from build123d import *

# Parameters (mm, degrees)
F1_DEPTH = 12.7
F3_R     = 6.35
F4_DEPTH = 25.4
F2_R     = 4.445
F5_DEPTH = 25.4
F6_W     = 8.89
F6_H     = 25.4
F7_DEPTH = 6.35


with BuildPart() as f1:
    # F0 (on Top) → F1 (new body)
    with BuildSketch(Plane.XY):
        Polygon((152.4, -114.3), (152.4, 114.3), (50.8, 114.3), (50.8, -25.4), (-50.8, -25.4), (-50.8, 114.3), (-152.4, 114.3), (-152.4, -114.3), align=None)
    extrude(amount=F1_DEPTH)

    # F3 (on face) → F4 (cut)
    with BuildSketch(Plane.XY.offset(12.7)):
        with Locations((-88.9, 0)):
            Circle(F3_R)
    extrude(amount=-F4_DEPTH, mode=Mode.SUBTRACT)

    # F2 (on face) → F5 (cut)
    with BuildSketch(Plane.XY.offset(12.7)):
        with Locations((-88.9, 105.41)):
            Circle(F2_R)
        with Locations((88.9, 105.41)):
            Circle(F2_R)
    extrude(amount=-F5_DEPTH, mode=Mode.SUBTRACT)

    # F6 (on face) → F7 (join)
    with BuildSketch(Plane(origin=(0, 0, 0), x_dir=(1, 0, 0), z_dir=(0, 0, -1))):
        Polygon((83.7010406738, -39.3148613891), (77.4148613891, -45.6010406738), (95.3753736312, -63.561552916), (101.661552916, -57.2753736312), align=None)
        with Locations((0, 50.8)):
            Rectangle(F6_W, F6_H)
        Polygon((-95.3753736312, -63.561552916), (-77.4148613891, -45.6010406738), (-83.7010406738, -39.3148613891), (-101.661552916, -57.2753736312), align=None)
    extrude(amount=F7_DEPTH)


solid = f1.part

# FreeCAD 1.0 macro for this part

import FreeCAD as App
import Part
import Sketcher
from FreeCAD import Vector
Q = App.Units.Quantity

doc = App.newDocument("Part")
body = doc.addObject("PartDesign::Body", "Body")

sketch1 = body.newObject("Sketcher::SketchObject", "Sketch")
sketch1.AttachmentSupport = (doc.getObject("XY_Plane"), [""])
sketch1.MapMode = "FlatFace"
sketch1.addGeometry([
    Part.LineSegment(Vector(152, -114, 0), Vector(152, 114, 0)),
    Part.LineSegment(Vector(152, 114, 0), Vector(51, 114, 0)),
    Part.LineSegment(Vector(51, 114, 0), Vector(51, -25, 0)),
    Part.LineSegment(Vector(51, -25, 0), Vector(-51, -25, 0)),
    Part.LineSegment(Vector(-51, -25, 0), Vector(-51, 114, 0)),
    Part.LineSegment(Vector(-51, 114, 0), Vector(-152, 114, 0)),
    Part.LineSegment(Vector(-152, 114, 0), Vector(-152, -114, 0)),
    Part.LineSegment(Vector(-152, -114, 0), Vector(152, -114, 0)),
], False)
sketch1.addConstraint([
    Sketcher.Constraint("Coincident", 0, 2, 1, 1),
    Sketcher.Constraint("Coincident", 1, 2, 2, 1),
    Sketcher.Constraint("Coincident", 2, 2, 3, 1),
    Sketcher.Constraint("Coincident", 3, 2, 4, 1),
    Sketcher.Constraint("Coincident", 4, 2, 5, 1),
    Sketcher.Constraint("Coincident", 5, 2, 6, 1),
    Sketcher.Constraint("Coincident", 6, 2, 7, 1),
    Sketcher.Constraint("Coincident", 7, 2, 0, 1),
    Sketcher.Constraint("Vertical", 0),
    Sketcher.Constraint("Horizontal", 1),
    Sketcher.Constraint("Vertical", 2),
    Sketcher.Constraint("Horizontal", 3),
    Sketcher.Constraint("Vertical", 4),
    Sketcher.Constraint("Horizontal", 5),
    Sketcher.Constraint("Vertical", 6),
    Sketcher.Constraint("Horizontal", 7),
    Sketcher.Constraint("Symmetric", 0, 2, 6, 2, -1, 1),
    Sketcher.Constraint("Symmetric", 1, 2, 4, 2, -2),
    Sketcher.Constraint("Equal", 1, 3),
    Sketcher.Constraint("DistanceX", 1, 2, 1, 1, Q("4 in")),
    Sketcher.Constraint("DistanceY", 0, 1, 0, 2, Q("9 in")),
    Sketcher.Constraint("DistanceY", 2, 2, 2, 1, Q("5.5 in")),
])
pad1 = body.newObject("PartDesign::Pad", "Pad")
pad1.Profile = sketch1
pad1.Length = Q("0.5 in")

sketch2 = body.newObject("Sketcher::SketchObject", "Sketch001")
sketch2.AttachmentSupport = (doc.getObject("XY_Plane"), [""])
sketch2.MapMode = "FlatFace"
sketch2.AttachmentOffset = App.Placement(Vector(0, 0, 0.5 * 25.4), App.Rotation())
sketch2.addGeometry(Part.Circle(Vector(-89, 0, 0), Vector(0, 0, 1), 6), False)
sketch2.addConstraint([
    Sketcher.Constraint("PointOnObject", 0, 3, -1),
    Sketcher.Constraint("Diameter", 0, Q("0.5 in")),
    Sketcher.Constraint("DistanceX", 0, 3, -1, 1, Q("3.5 in")),
])
pocket1 = body.newObject("PartDesign::Pocket", "Pocket")
pocket1.Profile = sketch2
pocket1.Length = Q("1 in")

sketch3 = body.newObject("Sketcher::SketchObject", "Sketch002")
sketch3.AttachmentSupport = (doc.getObject("XY_Plane"), [""])
sketch3.MapMode = "FlatFace"
sketch3.AttachmentOffset = App.Placement(Vector(0, 0, 0.5 * 25.4), App.Rotation())
sketch3.addGeometry([
    Part.Circle(Vector(-88.9, 105.4, 0), Vector(0, 0, 1), 4.4),
    Part.Circle(Vector(88.9, 105.4, 0), Vector(0, 0, 1), 4.4),
], False)
sketch3.addConstraint([
    Sketcher.Constraint("Equal", 0, 1),
    Sketcher.Constraint("Symmetric", 0, 3, 1, 3, -2),
    Sketcher.Constraint("Diameter", 0, Q("0.35 in")),
    Sketcher.Constraint("DistanceX", 0, 3, 1, 3, Q("7 in")),
    Sketcher.Constraint("DistanceY", -1, 1, 0, 3, Q("4.15 in")),
])
pocket2 = body.newObject("PartDesign::Pocket", "Pocket001")
pocket2.Profile = sketch3
pocket2.Length = Q("1 in")

sketch4 = body.newObject("Sketcher::SketchObject", "Sketch003")
sketch4.AttachmentSupport = (doc.getObject("XY_Plane"), [""])
sketch4.MapMode = "FlatFace"
sketch4.addGeometry([
    Part.LineSegment(Vector(84, 39, 0), Vector(77, 46, 0)),
    Part.LineSegment(Vector(77, 46, 0), Vector(95, 64, 0)),
    Part.LineSegment(Vector(95, 64, 0), Vector(102, 57, 0)),
    Part.LineSegment(Vector(102, 57, 0), Vector(84, 39, 0)),
    Part.LineSegment(Vector(-4, -64, 0), Vector(-4, -38, 0)),
    Part.LineSegment(Vector(-4, -38, 0), Vector(4, -38, 0)),
    Part.LineSegment(Vector(4, -38, 0), Vector(4, -64, 0)),
    Part.LineSegment(Vector(4, -64, 0), Vector(-4, -64, 0)),
    Part.LineSegment(Vector(-95, 64, 0), Vector(-77, 46, 0)),
    Part.LineSegment(Vector(-77, 46, 0), Vector(-84, 39, 0)),
    Part.LineSegment(Vector(-84, 39, 0), Vector(-102, 57, 0)),
    Part.LineSegment(Vector(-102, 57, 0), Vector(-95, 64, 0)),
], False)
sketch4.addConstraint([
    Sketcher.Constraint("Coincident", 0, 2, 1, 1),
    Sketcher.Constraint("Coincident", 1, 2, 2, 1),
    Sketcher.Constraint("Coincident", 2, 2, 3, 1),
    Sketcher.Constraint("Coincident", 3, 2, 0, 1),
    Sketcher.Constraint("Coincident", 4, 2, 5, 1),
    Sketcher.Constraint("Coincident", 5, 2, 6, 1),
    Sketcher.Constraint("Coincident", 6, 2, 7, 1),
    Sketcher.Constraint("Coincident", 7, 2, 4, 1),
    Sketcher.Constraint("Coincident", 8, 2, 9, 1),
    Sketcher.Constraint("Coincident", 9, 2, 10, 1),
    Sketcher.Constraint("Coincident", 10, 2, 11, 1),
    Sketcher.Constraint("Coincident", 11, 2, 8, 1),
    Sketcher.Constraint("Vertical", 4),
    Sketcher.Constraint("Horizontal", 5),
    Sketcher.Constraint("Vertical", 6),
    Sketcher.Constraint("Horizontal", 7),
    Sketcher.Constraint("Symmetric", 0, 2, 8, 2, -2),
    Sketcher.Constraint("Symmetric", 3, 2, 9, 2, -2),
    Sketcher.Constraint("Symmetric", 2, 2, 10, 2, -2),
    Sketcher.Constraint("Symmetric", 1, 2, 11, 2, -2),
    Sketcher.Constraint("Perpendicular", 0, 1),
    Sketcher.Constraint("Perpendicular", 1, 2),
    Sketcher.Constraint("Perpendicular", 2, 3),
    Sketcher.Constraint("Perpendicular", 3, 8),
    Sketcher.Constraint("DistanceY", 4, 1, 4, 2, Q("1 in")),
    Sketcher.Constraint("Distance", 1, Q("1 in")),
    Sketcher.Constraint("DistanceX", 5, 1, 5, 2, Q("0.35 in")),
    Sketcher.Constraint("DistanceY", 4, 2, -1, 1, Q("1.5 in")),
    Sketcher.Constraint("Distance", 0, Q("0.35 in")),
    Sketcher.Constraint("DistanceX", 4, 2, -1, 1, Q("0.175 in")),
    Sketcher.Constraint("DistanceX", -1, 1, 0, 2, Q("77.414861 mm")),
    Sketcher.Constraint("DistanceY", -1, 1, 0, 2, Q("45.601041 mm")),
])
pad2 = body.newObject("PartDesign::Pad", "Pad001")
pad2.Profile = sketch4
pad2.Length = Q("0.25 in")
pad2.Reversed = True

doc.recompute()
